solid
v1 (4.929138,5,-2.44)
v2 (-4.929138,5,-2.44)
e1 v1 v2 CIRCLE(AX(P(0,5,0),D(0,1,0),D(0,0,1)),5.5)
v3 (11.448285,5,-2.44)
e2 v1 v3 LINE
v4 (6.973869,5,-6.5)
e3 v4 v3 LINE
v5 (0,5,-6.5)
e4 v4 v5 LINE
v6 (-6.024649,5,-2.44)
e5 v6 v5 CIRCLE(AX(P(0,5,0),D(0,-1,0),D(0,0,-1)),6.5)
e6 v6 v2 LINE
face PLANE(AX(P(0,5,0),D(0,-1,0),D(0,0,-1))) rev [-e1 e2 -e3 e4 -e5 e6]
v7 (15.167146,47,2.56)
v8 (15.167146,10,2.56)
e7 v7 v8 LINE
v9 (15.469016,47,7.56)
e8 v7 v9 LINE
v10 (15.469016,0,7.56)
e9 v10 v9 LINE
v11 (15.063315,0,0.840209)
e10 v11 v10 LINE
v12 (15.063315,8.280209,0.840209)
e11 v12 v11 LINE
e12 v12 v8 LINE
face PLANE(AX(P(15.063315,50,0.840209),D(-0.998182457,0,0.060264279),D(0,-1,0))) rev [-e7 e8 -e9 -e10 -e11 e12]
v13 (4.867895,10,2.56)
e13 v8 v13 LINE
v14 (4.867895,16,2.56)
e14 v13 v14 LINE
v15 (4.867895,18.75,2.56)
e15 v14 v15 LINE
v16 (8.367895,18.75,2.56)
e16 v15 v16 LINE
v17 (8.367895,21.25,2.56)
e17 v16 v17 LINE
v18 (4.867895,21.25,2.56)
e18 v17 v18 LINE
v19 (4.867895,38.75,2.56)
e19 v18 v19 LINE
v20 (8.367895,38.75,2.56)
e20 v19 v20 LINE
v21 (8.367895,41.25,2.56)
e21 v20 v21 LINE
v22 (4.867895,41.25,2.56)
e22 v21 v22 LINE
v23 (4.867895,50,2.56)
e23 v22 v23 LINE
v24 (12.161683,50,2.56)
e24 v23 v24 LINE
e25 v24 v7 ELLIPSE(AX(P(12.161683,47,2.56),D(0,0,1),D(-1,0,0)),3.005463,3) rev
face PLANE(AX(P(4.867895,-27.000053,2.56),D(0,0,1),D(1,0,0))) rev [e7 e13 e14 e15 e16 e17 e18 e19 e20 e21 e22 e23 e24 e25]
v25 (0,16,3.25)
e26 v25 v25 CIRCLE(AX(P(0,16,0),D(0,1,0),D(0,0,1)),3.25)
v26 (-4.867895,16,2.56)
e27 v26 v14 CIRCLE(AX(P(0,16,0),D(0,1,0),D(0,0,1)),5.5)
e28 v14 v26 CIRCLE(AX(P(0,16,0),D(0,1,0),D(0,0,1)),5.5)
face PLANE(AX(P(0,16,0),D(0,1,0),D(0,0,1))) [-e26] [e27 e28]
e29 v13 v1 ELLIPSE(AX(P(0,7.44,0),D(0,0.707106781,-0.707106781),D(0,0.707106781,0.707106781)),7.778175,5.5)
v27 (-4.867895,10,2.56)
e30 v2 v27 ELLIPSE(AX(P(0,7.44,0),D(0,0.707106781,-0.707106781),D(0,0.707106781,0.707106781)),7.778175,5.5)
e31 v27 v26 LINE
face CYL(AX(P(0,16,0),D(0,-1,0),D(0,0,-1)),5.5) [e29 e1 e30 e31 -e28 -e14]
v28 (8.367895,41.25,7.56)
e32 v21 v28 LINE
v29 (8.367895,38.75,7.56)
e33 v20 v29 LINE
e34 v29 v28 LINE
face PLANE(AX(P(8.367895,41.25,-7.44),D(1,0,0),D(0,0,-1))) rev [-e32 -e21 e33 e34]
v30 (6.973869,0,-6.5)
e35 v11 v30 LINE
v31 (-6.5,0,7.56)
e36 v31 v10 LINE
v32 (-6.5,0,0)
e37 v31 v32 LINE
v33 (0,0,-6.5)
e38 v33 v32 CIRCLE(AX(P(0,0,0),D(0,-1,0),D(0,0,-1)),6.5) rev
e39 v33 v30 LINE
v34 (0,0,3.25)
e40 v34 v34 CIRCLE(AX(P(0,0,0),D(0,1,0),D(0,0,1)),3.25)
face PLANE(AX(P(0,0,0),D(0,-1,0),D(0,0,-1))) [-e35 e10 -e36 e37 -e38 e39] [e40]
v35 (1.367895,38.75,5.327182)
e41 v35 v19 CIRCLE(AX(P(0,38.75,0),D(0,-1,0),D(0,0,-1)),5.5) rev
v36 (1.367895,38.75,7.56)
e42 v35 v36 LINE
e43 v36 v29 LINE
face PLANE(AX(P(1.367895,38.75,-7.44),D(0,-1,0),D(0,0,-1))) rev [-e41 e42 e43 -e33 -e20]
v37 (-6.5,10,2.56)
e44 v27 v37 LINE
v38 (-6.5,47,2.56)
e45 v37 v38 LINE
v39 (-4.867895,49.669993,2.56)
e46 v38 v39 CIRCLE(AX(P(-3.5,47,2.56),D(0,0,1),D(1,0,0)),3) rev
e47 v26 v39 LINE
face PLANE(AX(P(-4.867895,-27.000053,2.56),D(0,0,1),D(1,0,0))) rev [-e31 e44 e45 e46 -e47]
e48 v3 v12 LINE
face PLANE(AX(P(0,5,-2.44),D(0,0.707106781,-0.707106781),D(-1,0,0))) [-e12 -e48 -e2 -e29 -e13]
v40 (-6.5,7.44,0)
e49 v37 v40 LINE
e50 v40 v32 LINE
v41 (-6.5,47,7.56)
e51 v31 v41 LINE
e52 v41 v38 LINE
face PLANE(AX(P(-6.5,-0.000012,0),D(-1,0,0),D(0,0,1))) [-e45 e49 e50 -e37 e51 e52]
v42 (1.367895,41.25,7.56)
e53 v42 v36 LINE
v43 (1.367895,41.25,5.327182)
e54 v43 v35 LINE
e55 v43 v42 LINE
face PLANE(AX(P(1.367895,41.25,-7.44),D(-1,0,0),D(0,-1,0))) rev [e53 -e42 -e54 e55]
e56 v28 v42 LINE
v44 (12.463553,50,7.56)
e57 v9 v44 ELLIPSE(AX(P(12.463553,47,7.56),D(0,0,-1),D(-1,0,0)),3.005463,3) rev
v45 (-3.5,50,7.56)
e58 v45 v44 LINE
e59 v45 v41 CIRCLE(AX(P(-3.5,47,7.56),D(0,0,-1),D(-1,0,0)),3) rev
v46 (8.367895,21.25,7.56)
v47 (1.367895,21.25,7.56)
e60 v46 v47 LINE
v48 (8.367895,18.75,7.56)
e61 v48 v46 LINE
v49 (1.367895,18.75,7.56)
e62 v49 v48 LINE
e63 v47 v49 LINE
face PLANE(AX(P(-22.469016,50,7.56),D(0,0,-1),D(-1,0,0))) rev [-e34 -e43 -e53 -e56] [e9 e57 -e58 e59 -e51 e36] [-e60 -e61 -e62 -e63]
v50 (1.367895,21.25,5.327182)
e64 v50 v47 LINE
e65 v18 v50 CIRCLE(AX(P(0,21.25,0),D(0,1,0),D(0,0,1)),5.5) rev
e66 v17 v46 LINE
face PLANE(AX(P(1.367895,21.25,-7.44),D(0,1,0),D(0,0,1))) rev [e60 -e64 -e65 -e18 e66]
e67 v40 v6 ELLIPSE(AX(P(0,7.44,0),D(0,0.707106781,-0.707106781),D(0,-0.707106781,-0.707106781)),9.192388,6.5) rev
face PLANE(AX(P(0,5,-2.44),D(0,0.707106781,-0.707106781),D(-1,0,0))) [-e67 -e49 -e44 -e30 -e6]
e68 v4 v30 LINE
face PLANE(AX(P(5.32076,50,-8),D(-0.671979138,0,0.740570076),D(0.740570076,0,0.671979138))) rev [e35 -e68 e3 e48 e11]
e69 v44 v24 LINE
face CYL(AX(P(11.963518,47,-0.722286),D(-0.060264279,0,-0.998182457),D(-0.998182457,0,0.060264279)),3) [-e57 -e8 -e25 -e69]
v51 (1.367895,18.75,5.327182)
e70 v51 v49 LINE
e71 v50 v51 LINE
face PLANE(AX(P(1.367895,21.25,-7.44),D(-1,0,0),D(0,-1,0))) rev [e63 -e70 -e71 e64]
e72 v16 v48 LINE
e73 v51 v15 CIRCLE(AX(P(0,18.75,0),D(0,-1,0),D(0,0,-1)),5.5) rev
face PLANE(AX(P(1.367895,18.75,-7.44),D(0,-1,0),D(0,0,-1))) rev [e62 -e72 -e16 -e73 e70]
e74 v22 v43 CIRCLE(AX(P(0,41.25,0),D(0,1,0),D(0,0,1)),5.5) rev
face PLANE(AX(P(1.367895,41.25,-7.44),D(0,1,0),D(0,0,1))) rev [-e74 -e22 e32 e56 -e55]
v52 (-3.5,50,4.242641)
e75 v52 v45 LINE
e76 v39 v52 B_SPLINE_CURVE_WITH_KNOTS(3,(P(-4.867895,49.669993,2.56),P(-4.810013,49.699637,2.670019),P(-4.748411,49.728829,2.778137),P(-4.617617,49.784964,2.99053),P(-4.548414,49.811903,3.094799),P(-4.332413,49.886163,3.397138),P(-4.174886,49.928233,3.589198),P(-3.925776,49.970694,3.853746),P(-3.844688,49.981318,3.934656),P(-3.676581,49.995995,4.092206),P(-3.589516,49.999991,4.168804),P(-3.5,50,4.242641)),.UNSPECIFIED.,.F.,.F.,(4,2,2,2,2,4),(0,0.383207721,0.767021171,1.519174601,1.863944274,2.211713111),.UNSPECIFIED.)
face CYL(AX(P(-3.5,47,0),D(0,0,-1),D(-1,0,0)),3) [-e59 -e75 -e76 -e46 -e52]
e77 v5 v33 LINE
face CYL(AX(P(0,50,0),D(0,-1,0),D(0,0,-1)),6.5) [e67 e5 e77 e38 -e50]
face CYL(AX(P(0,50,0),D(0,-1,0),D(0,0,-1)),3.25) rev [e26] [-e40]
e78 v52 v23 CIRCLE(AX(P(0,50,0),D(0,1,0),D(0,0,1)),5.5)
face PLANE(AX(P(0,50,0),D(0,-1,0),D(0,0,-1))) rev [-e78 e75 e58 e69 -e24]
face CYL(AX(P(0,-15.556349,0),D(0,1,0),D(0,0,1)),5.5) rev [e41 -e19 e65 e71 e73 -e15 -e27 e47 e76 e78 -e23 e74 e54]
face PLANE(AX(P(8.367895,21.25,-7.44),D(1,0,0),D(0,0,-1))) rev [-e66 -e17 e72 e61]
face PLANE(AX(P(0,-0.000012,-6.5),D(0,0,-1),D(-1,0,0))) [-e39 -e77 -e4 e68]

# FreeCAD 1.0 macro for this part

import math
import FreeCAD as App
import Part
import Sketcher
Q = App.Units.Quantity


def edges_at(feature, points):
    """Names of the edges that pass closest to the given points."""
    edges = feature.Shape.Edges
    near = lambda p: min(range(len(edges)), key=lambda i: edges[i].distToShape(Part.Vertex(*p))[0])
    return sorted({f"Edge{near(p) + 1}" for p in points})


def add_polygon(sketch, points):
    """Adds a closed chain of lines whose ends are joined by coincident constraints."""
    first, n = sketch.GeometryCount, len(points)
    for a, b in zip(points, points[1:] + points[:1]):
        sketch.addGeometry(Part.LineSegment(App.Vector(*a, 0), App.Vector(*b, 0)), False)
    for i in range(n):
        sketch.addConstraint(Sketcher.Constraint("Coincident", first + i, 2, first + (i + 1) % n, 1))

doc = App.newDocument("Part")
body = doc.addObject("PartDesign::Body", "Body")

# Sketch on XZ plane
sketch1 = doc.addObject("Sketcher::SketchObject", "Sketch")
body.addObject(sketch1)
sketch1.AttachmentSupport = (doc.XZ_Plane, [""])
sketch1.MapMode = "FlatFace"
add_polygon(sketch1, [(-5.3, -8), (-22.5, 7.6), (22.5, 7.6), (5.3, -8)])  # lines 0-3
sketch1.addGeometry(Part.Circle(App.Vector(0, 0, 0), App.Vector(0, 0, 1), 3.2), False)  # 4
sketch1.addConstraint([
    Sketcher.Constraint("Horizontal", 1),
    Sketcher.Constraint("Horizontal", 3),
    Sketcher.Constraint("Coincident", 4, 3, -1, 1),
    Sketcher.Constraint("Equal", 0, 2),
    Sketcher.Constraint("Diameter", 4, Q("6.5 mm")),
    Sketcher.Constraint("DistanceY", 2, 2, -1, 1, Q("8 mm")),
    Sketcher.Constraint("Angle", 0, Q("137.78 deg")),
    Sketcher.Constraint("DistanceY", -1, 1, 0, 2, Q("7.56 mm")),
    Sketcher.Constraint("DistanceX", 1, 1, 1, 2, Q("44.938031 mm")),
    Sketcher.Constraint("DistanceX", -1, 1, 2, 2, Q("5.32076 mm")),
])
pad1 = doc.addObject("PartDesign::Pad", "Pad")
body.addObject(pad1)
pad1.Profile = sketch1
pad1.Length = 50
pad1.Reversed = True
doc.recompute()

chamfer = doc.addObject("PartDesign::Chamfer", "Chamfer")
body.addObject(chamfer)
chamfer.Base = (pad1, edges_at(pad1, [(22.469, 25, 7.56)]))
chamfer.ChamferType = "Two distances"
chamfer.Size = 7
chamfer.Size2 = 10

# Sketch on XZ plane
sketch2 = doc.addObject("Sketcher::SketchObject", "Sketch001")
body.addObject(sketch2)
sketch2.AttachmentSupport = (doc.XZ_Plane, [""])
sketch2.MapMode = "FlatFace"
sketch2.AttachmentOffset = App.Placement(App.Vector(0, 0, -50), App.Rotation())
sketch2.addGeometry(Part.Circle(App.Vector(0, 0, 0), App.Vector(0, 0, 1), 6), False)
sketch2.addConstraint([
    Sketcher.Constraint("Coincident", 0, 3, -1, 1),
    Sketcher.Constraint("Diameter", 0, Q("11 mm")),
])
pocket1 = doc.addObject("PartDesign::Pocket", "Pocket")
body.addObject(pocket1)
pocket1.Profile = sketch2
pocket1.Length = 45
pocket1.Reversed = True

# Sketch on XZ plane
sketch3 = doc.addObject("Sketcher::SketchObject", "Sketch002")
body.addObject(sketch3)
sketch3.AttachmentSupport = (doc.XZ_Plane, [""])
sketch3.MapMode = "FlatFace"
sketch3.addGeometry([
    Part.LineSegment(App.Vector(-6, 0, 0), App.Vector(-6, 8, 0)),  # 0
    Part.LineSegment(App.Vector(-6, 8, 0), App.Vector(-18, 19, 0)),  # 1
    Part.LineSegment(App.Vector(-18, 19, 0), App.Vector(-28, 13, 0)),  # 2
    Part.LineSegment(App.Vector(-28, 13, 0), App.Vector(-26, -4, 0)),  # 3
    Part.LineSegment(App.Vector(-26, -4, 0), App.Vector(-22, -12, 0)),  # 4
    Part.LineSegment(App.Vector(-22, -12, 0), App.Vector(6, -12, 0)),  # 5
    Part.LineSegment(App.Vector(6, -12, 0), App.Vector(12, -6, 0)),  # 6
    Part.LineSegment(App.Vector(12, -6, 0), App.Vector(0, -6, 0)),  # 7
    Part.ArcOfCircle(Part.Circle(App.Vector(0, 0, 0), App.Vector(0, 0, 1), 6), math.radians(180), math.radians(270)),  # 8
], False)
sketch3.addConstraint([
    Sketcher.Constraint("Coincident", 0, 2, 1, 1),
    Sketcher.Constraint("Coincident", 1, 2, 2, 1),
    Sketcher.Constraint("Coincident", 2, 2, 3, 1),
    Sketcher.Constraint("Coincident", 3, 2, 4, 1),
    Sketcher.Constraint("Coincident", 4, 2, 5, 1),
    Sketcher.Constraint("Coincident", 5, 2, 6, 1),
    Sketcher.Constraint("Coincident", 6, 2, 7, 1),
    Sketcher.Constraint("Tangent", 7, 2, 8, 2),
    Sketcher.Constraint("Tangent", 8, 1, 0, 1),
    Sketcher.Constraint("Vertical", 0),
    Sketcher.Constraint("Horizontal", 7),
    Sketcher.Constraint("Coincident", 8, 3, -1, 1),
    Sketcher.Constraint("Perpendicular", 2, 4),
    Sketcher.Constraint("Radius", 8, Q("6.5 mm")),
    Sketcher.Constraint("Distance", 3, Q("17.298202 mm")),
    Sketcher.Constraint("DistanceY", 5, 2, 0, 2, Q("20.359499 mm")),
    Sketcher.Constraint("Distance", 1, Q("15.34548 mm")),
    Sketcher.Constraint("Distance", 2, Q("11.071238 mm")),
    Sketcher.Constraint("Distance", 6, Q("7.844642 mm")),
    Sketcher.Constraint("DistanceX", 7, 2, 7, 1, Q("12.131507 mm")),
    Sketcher.Constraint("DistanceY", 0, 1, 0, 2, Q("8.455296 mm")),
    Sketcher.Constraint("DistanceY", -1, 1, 1, 2, Q("18.50953 mm")),
    Sketcher.Constraint("DistanceX", 2, 2, -1, 1, Q("27.843988 mm")),
    Sketcher.Constraint("DistanceY", 3, 2, -1, 1, Q("3.957148 mm")),
    Sketcher.Constraint("DistanceX", 4, 2, -1, 1, Q("22.051552 mm")),
])
pocket2 = doc.addObject("PartDesign::Pocket", "Pocket001")
body.addObject(pocket2)
pocket2.Profile = sketch3
pocket2.Type = "ThroughAll"
pocket2.Midplane = True

# Sketch on XZ plane
sketch4 = doc.addObject("Sketcher::SketchObject", "Sketch003")
body.addObject(sketch4)
sketch4.AttachmentSupport = (doc.XZ_Plane, [""])
sketch4.MapMode = "FlatFace"
sketch4.AttachmentOffset = App.Placement(App.Vector(0, 0, -50), App.Rotation())
add_polygon(sketch4, [(0, 0), (4.9, 2.6), (20.5, 2.6), (8.3, -8.4), (-9.6, -8.4), (-9.6, 2.6), (-4.9, 2.6)])  # lines 0-6
sketch4.addConstraint([
    Sketcher.Constraint("Horizontal", 1),
    Sketcher.Constraint("Horizontal", 3),
    Sketcher.Constraint("Vertical", 4),
    Sketcher.Constraint("Horizontal", 5),
    Sketcher.Constraint("Coincident", 6, 2, -1, 1),
    Sketcher.Constraint("Symmetric", 0, 2, 5, 2, -2),
    Sketcher.Constraint("Distance", 0, Q("5.5 mm")),
    Sketcher.Constraint("DistanceY", -1, 1, 0, 2, Q("2.56 mm")),
    Sketcher.Constraint("DistanceX", 1, 1, 1, 2, Q("15.614951 mm")),
    Sketcher.Constraint("Distance", 2, Q("16.406031 mm")),
    Sketcher.Constraint("DistanceX", 3, 2, 3, 1, Q("17.845966 mm")),
    Sketcher.Constraint("DistanceX", 5, 1, 5, 2, Q("4.721154 mm")),
])
pocket3 = doc.addObject("PartDesign::Pocket", "Pocket002")
body.addObject(pocket3)
pocket3.Profile = sketch4
pocket3.Length = 45
pocket3.Reversed = True
doc.recompute()

chamfer2 = doc.addObject("PartDesign::Chamfer", "Chamfer001")
body.addObject(chamfer2)
chamfer2.Base = (pocket3, edges_at(pocket3, [(10.018, 5, 2.56), (-5.684, 5, 2.56)]))
chamfer2.Size = 5
doc.recompute()

fillet = doc.addObject("PartDesign::Fillet", "Fillet")
body.addObject(fillet)
fillet.Base = (chamfer2, edges_at(chamfer2, [(15.318, 50, 5.06), (-6.5, 50, 5.06)]))
fillet.Radius = 3

# Sketch on XZ plane
sketch5 = doc.addObject("Sketcher::SketchObject", "Sketch004")
body.addObject(sketch5)
sketch5.AttachmentSupport = (doc.XZ_Plane, [""])
sketch5.MapMode = "FlatFace"
sketch5.AttachmentOffset = App.Placement(App.Vector(0, 0, -5), App.Rotation())
sketch5.addGeometry([
    Part.Circle(App.Vector(0, 0, 0), App.Vector(0, 0, 1), 5.5),
    Part.Circle(App.Vector(0, 0, 0), App.Vector(0, 0, 1), 3.2),
], False)
sketch5.addConstraint([
    Sketcher.Constraint("Coincident", 0, 3, -1, 1),
    Sketcher.Constraint("Coincident", 1, 3, -1, 1),
    Sketcher.Constraint("Diameter", 0, Q("11 mm")),
    Sketcher.Constraint("Diameter", 1, Q("6.5 mm")),
])
pad2 = doc.addObject("PartDesign::Pad", "Pad001")
body.addObject(pad2)
pad2.Profile = sketch5
pad2.Length = 11
pad2.Reversed = True

# Sketch on XY plane
sketch6 = doc.addObject("Sketcher::SketchObject", "Sketch005")
body.addObject(sketch6)
sketch6.AttachmentSupport = (doc.XY_Plane, [""])
sketch6.MapMode = "FlatFace"
sketch6.AttachmentOffset = App.Placement(App.Vector(0, 0, 7.56), App.Rotation())
add_polygon(sketch6, [(1.4, 41.2), (1.4, 38.8), (8.4, 38.8), (8.4, 41.2)])  # lines 0-3
add_polygon(sketch6, [(1.4, 21.2), (1.4, 18.8), (8.4, 18.8), (8.4, 21.2)])  # lines 4-7
sketch6.addConstraint([
    Sketcher.Constraint("Vertical", 0),
    Sketcher.Constraint("Horizontal", 1),
    Sketcher.Constraint("Vertical", 2),
    Sketcher.Constraint("Horizontal", 3),
    Sketcher.Constraint("Vertical", 4),
    Sketcher.Constraint("Horizontal", 5),
    Sketcher.Constraint("Vertical", 6),
    Sketcher.Constraint("Horizontal", 7),
    Sketcher.Constraint("Vertical", 3, 2, 4, 2),
    Sketcher.Constraint("Vertical", 2, 2, 5, 2),
    Sketcher.Constraint("Equal", 2, 4),
    Sketcher.Constraint("DistanceX", 1, 1, 1, 2, Q("7 mm")),
    Sketcher.Constraint("DistanceY", 0, 2, 0, 1, Q("2.5 mm")),
    Sketcher.Constraint("DistanceY", 4, 2, 0, 2, Q("20 mm")),
    Sketcher.Constraint("DistanceY", -1, 1, 0, 2, Q("38.75 mm")),
    Sketcher.Constraint("DistanceX", -1, 1, 0, 2, Q("1.367895 mm")),
])
pocket4 = doc.addObject("PartDesign::Pocket", "Pocket003")
body.addObject(pocket4)
pocket4.Profile = sketch6
pocket4.Length = 15

doc.recompute()
